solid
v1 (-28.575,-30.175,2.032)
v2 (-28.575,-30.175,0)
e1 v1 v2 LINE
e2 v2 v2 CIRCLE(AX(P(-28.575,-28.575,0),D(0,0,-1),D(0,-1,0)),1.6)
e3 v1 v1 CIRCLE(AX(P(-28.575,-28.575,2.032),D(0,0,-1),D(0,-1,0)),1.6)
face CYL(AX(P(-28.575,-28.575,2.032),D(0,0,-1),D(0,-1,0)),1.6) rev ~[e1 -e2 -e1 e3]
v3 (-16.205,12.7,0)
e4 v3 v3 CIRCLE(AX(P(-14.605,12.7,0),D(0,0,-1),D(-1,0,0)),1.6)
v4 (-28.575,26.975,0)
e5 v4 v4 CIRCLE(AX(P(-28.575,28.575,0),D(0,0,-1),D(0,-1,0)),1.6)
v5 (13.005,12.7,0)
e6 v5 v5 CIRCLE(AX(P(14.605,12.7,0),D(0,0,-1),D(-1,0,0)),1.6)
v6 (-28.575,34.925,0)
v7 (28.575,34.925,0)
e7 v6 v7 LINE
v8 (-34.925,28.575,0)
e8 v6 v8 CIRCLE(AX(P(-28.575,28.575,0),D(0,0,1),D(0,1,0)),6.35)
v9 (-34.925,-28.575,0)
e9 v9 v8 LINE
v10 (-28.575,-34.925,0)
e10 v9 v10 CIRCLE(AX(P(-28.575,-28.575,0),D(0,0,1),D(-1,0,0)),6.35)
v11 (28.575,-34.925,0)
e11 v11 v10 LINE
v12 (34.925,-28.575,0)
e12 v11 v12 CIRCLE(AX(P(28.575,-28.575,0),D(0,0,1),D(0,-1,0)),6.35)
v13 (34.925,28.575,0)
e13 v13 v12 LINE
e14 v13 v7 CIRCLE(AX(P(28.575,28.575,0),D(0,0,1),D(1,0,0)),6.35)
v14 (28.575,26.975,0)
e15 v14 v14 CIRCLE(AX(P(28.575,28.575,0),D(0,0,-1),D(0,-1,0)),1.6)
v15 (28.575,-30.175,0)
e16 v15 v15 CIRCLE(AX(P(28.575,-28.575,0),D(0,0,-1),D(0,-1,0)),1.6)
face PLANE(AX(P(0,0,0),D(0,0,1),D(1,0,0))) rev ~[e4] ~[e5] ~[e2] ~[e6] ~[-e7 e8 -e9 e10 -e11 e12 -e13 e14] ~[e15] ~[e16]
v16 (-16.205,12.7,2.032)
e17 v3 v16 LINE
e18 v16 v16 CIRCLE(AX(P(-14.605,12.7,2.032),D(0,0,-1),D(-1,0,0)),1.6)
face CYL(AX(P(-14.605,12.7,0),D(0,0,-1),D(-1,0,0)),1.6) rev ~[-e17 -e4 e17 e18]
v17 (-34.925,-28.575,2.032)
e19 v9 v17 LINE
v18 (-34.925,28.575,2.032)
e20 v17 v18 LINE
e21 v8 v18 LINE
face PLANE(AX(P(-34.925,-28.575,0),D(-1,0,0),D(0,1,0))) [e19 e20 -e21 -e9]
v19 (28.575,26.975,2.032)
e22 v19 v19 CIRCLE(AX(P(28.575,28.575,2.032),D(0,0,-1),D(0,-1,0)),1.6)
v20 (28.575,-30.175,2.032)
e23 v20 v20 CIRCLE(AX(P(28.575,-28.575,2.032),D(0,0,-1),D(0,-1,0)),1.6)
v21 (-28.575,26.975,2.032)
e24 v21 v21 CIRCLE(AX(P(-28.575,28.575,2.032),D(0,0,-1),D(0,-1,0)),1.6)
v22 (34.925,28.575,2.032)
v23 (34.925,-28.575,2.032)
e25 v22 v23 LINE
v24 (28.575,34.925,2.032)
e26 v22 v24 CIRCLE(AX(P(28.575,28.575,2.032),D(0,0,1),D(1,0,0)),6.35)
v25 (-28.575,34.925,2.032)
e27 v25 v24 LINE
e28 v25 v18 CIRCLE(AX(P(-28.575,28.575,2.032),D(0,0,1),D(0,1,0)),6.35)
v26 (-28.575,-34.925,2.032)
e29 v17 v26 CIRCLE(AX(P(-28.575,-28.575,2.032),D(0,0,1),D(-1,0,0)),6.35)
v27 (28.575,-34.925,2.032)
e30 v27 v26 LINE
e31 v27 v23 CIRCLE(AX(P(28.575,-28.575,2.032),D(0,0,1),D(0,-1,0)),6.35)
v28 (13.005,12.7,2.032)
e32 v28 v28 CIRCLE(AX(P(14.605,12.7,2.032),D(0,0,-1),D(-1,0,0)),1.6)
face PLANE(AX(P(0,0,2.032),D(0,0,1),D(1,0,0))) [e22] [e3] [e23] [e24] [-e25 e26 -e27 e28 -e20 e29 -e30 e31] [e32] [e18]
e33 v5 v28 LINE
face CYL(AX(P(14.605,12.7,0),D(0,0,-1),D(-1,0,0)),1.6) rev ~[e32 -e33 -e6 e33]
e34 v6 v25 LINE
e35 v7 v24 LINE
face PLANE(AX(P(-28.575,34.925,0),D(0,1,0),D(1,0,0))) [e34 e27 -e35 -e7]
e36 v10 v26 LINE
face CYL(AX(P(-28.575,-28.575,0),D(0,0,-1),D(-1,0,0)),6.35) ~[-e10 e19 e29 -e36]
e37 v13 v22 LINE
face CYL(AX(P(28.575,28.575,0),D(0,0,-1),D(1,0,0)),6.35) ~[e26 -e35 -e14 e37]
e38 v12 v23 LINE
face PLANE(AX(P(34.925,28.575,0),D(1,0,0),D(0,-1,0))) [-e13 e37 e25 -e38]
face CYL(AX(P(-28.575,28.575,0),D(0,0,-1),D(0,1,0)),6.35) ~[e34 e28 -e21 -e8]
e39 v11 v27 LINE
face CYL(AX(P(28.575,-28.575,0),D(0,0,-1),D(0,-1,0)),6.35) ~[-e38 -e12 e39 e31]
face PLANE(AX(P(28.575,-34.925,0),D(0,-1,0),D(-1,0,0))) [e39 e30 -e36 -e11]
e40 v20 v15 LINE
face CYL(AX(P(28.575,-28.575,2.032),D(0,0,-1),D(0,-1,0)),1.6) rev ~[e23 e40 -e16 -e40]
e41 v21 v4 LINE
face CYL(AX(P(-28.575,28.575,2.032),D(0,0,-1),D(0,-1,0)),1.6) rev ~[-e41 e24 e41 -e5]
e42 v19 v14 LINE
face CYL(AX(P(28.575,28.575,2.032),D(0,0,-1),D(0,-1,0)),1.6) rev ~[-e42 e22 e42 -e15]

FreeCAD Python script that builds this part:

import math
import FreeCAD as App
import Part
import Sketcher
Q = App.Units.Quantity

doc = App.newDocument("Part")
body = doc.addObject("PartDesign::Body", "Body")

# Sketch on XY plane
sketch1 = body.newObject("Sketcher::SketchObject", "Sketch")
sketch1.AttachmentSupport = (doc.getObject("XY_Plane"), [""])
sketch1.MapMode = "FlatFace"
sketch1.addGeometry([
    Part.LineSegment(App.Vector(-28.575, -34.925, 0), App.Vector(28.575, -34.925, 0)),  # 0
    Part.ArcOfCircle(Part.Circle(App.Vector(28.575, -28.575, 0), App.Vector(0, 0, 1), 6.35), math.radians(-90), math.radians(0)),  # 1
    Part.LineSegment(App.Vector(34.925, -28.575, 0), App.Vector(34.925, 28.575, 0)),  # 2
    Part.ArcOfCircle(Part.Circle(App.Vector(28.575, 28.575, 0), App.Vector(0, 0, 1), 6.35), math.radians(0), math.radians(90)),  # 3
    Part.LineSegment(App.Vector(28.575, 34.925, 0), App.Vector(-28.575, 34.925, 0)),  # 4
    Part.ArcOfCircle(Part.Circle(App.Vector(-28.575, 28.575, 0), App.Vector(0, 0, 1), 6.35), math.radians(90), math.radians(180)),  # 5
    Part.LineSegment(App.Vector(-34.925, 28.575, 0), App.Vector(-34.925, -28.575, 0)),  # 6
    Part.ArcOfCircle(Part.Circle(App.Vector(-28.575, -28.575, 0), App.Vector(0, 0, 1), 6.35), math.radians(180), math.radians(270)),  # 7
], False)
sketch1.addConstraint([
    Sketcher.Constraint("Tangent", 0, 2, 1, 1),
    Sketcher.Constraint("Tangent", 1, 2, 2, 1),
    Sketcher.Constraint("Tangent", 2, 2, 3, 1),
    Sketcher.Constraint("Tangent", 3, 2, 4, 1),
    Sketcher.Constraint("Tangent", 4, 2, 5, 1),
    Sketcher.Constraint("Tangent", 5, 2, 6, 1),
    Sketcher.Constraint("Tangent", 6, 2, 7, 1),
    Sketcher.Constraint("Tangent", 7, 2, 0, 1),
    Sketcher.Constraint("Horizontal", 0),
    Sketcher.Constraint("Vertical", 2),
    Sketcher.Constraint("Horizontal", 4),
    Sketcher.Constraint("Vertical", 6),
    Sketcher.Constraint("Equal", 1, 3),
    Sketcher.Constraint("Equal", 3, 5),
    Sketcher.Constraint("Equal", 5, 7),
    Sketcher.Constraint("Symmetric", 1, 3, 5, 3, -1, 1),
    Sketcher.Constraint("Equal", 4, 2),
    Sketcher.Constraint("Radius", 1, Q("0.25 in")),
    Sketcher.Constraint("DistanceX", 0, 1, 0, 2, Q("2.25 in")),
])
pad1 = body.newObject("PartDesign::Pad", "Pad")
pad1.Profile = sketch1
pad1.Length = Q("0.08 in")

# Sketch on XY plane
sketch2 = body.newObject("Sketcher::SketchObject", "Sketch001")
sketch2.AttachmentSupport = (doc.getObject("XY_Plane"), [""])
sketch2.MapMode = "FlatFace"
sketch2.AttachmentOffset = App.Placement(App.Vector(0, 0, 0.08 * 25.4), App.Rotation())
sketch2.addGeometry([
    Part.Circle(App.Vector(-28.575, 28.575, 0), App.Vector(0, 0, 1), 1.6),
    Part.Circle(App.Vector(28.575, 28.575, 0), App.Vector(0, 0, 1), 1.6),
    Part.Circle(App.Vector(28.575, -28.575, 0), App.Vector(0, 0, 1), 1.6),
    Part.Circle(App.Vector(-28.575, -28.575, 0), App.Vector(0, 0, 1), 1.6),
], False)
sketch2.addConstraint([
    Sketcher.Constraint("Equal", 0, 1),
    Sketcher.Constraint("Equal", 1, 2),
    Sketcher.Constraint("Equal", 2, 3),
    Sketcher.Constraint("Symmetric", 0, 3, 2, 3, -1, 1),
    Sketcher.Constraint("Symmetric", 1, 3, 3, 3, -1, 1),
    Sketcher.Constraint("Symmetric", 0, 3, 1, 3, -2),
    Sketcher.Constraint("Diameter", 0, 3.2),
    Sketcher.Constraint("DistanceX", 0, 3, 1, 3, Q("2.25 in")),
    Sketcher.Constraint("DistanceY", 2, 3, 1, 3, Q("2.25 in")),
])
doc.recompute()
hole = body.newObject("PartDesign::Hole", "Hole")
hole.Profile = sketch2
hole.ThreadType = "None"
hole.Diameter = 3.2
hole.DepthType = "ThroughAll"

# Sketch on XY plane
sketch3 = body.newObject("Sketcher::SketchObject", "Sketch002")
sketch3.AttachmentSupport = (doc.getObject("XY_Plane"), [""])
sketch3.MapMode = "FlatFace"
sketch3.addGeometry([
    Part.Circle(App.Vector(-14.605, 12.7, 0), App.Vector(0, 0, 1), 1.6),
    Part.Circle(App.Vector(14.605, 12.7, 0), App.Vector(0, 0, 1), 1.6),
], False)
sketch3.addConstraint([
    Sketcher.Constraint("Equal", 0, 1),
    Sketcher.Constraint("Symmetric", 0, 3, 1, 3, -2),
    Sketcher.Constraint("DistanceY", -1, 1, 0, 3, Q("0.5 in")),
    Sketcher.Constraint("Diameter", 0, 3.2),
    Sketcher.Constraint("DistanceX", 0, 3, 1, 3, Q("1.15 in")),
])
pocket1 = body.newObject("PartDesign::Pocket", "Pocket")
pocket1.Profile = sketch3
pocket1.Type = "ThroughAll"
pocket1.Reversed = True

doc.recompute()
